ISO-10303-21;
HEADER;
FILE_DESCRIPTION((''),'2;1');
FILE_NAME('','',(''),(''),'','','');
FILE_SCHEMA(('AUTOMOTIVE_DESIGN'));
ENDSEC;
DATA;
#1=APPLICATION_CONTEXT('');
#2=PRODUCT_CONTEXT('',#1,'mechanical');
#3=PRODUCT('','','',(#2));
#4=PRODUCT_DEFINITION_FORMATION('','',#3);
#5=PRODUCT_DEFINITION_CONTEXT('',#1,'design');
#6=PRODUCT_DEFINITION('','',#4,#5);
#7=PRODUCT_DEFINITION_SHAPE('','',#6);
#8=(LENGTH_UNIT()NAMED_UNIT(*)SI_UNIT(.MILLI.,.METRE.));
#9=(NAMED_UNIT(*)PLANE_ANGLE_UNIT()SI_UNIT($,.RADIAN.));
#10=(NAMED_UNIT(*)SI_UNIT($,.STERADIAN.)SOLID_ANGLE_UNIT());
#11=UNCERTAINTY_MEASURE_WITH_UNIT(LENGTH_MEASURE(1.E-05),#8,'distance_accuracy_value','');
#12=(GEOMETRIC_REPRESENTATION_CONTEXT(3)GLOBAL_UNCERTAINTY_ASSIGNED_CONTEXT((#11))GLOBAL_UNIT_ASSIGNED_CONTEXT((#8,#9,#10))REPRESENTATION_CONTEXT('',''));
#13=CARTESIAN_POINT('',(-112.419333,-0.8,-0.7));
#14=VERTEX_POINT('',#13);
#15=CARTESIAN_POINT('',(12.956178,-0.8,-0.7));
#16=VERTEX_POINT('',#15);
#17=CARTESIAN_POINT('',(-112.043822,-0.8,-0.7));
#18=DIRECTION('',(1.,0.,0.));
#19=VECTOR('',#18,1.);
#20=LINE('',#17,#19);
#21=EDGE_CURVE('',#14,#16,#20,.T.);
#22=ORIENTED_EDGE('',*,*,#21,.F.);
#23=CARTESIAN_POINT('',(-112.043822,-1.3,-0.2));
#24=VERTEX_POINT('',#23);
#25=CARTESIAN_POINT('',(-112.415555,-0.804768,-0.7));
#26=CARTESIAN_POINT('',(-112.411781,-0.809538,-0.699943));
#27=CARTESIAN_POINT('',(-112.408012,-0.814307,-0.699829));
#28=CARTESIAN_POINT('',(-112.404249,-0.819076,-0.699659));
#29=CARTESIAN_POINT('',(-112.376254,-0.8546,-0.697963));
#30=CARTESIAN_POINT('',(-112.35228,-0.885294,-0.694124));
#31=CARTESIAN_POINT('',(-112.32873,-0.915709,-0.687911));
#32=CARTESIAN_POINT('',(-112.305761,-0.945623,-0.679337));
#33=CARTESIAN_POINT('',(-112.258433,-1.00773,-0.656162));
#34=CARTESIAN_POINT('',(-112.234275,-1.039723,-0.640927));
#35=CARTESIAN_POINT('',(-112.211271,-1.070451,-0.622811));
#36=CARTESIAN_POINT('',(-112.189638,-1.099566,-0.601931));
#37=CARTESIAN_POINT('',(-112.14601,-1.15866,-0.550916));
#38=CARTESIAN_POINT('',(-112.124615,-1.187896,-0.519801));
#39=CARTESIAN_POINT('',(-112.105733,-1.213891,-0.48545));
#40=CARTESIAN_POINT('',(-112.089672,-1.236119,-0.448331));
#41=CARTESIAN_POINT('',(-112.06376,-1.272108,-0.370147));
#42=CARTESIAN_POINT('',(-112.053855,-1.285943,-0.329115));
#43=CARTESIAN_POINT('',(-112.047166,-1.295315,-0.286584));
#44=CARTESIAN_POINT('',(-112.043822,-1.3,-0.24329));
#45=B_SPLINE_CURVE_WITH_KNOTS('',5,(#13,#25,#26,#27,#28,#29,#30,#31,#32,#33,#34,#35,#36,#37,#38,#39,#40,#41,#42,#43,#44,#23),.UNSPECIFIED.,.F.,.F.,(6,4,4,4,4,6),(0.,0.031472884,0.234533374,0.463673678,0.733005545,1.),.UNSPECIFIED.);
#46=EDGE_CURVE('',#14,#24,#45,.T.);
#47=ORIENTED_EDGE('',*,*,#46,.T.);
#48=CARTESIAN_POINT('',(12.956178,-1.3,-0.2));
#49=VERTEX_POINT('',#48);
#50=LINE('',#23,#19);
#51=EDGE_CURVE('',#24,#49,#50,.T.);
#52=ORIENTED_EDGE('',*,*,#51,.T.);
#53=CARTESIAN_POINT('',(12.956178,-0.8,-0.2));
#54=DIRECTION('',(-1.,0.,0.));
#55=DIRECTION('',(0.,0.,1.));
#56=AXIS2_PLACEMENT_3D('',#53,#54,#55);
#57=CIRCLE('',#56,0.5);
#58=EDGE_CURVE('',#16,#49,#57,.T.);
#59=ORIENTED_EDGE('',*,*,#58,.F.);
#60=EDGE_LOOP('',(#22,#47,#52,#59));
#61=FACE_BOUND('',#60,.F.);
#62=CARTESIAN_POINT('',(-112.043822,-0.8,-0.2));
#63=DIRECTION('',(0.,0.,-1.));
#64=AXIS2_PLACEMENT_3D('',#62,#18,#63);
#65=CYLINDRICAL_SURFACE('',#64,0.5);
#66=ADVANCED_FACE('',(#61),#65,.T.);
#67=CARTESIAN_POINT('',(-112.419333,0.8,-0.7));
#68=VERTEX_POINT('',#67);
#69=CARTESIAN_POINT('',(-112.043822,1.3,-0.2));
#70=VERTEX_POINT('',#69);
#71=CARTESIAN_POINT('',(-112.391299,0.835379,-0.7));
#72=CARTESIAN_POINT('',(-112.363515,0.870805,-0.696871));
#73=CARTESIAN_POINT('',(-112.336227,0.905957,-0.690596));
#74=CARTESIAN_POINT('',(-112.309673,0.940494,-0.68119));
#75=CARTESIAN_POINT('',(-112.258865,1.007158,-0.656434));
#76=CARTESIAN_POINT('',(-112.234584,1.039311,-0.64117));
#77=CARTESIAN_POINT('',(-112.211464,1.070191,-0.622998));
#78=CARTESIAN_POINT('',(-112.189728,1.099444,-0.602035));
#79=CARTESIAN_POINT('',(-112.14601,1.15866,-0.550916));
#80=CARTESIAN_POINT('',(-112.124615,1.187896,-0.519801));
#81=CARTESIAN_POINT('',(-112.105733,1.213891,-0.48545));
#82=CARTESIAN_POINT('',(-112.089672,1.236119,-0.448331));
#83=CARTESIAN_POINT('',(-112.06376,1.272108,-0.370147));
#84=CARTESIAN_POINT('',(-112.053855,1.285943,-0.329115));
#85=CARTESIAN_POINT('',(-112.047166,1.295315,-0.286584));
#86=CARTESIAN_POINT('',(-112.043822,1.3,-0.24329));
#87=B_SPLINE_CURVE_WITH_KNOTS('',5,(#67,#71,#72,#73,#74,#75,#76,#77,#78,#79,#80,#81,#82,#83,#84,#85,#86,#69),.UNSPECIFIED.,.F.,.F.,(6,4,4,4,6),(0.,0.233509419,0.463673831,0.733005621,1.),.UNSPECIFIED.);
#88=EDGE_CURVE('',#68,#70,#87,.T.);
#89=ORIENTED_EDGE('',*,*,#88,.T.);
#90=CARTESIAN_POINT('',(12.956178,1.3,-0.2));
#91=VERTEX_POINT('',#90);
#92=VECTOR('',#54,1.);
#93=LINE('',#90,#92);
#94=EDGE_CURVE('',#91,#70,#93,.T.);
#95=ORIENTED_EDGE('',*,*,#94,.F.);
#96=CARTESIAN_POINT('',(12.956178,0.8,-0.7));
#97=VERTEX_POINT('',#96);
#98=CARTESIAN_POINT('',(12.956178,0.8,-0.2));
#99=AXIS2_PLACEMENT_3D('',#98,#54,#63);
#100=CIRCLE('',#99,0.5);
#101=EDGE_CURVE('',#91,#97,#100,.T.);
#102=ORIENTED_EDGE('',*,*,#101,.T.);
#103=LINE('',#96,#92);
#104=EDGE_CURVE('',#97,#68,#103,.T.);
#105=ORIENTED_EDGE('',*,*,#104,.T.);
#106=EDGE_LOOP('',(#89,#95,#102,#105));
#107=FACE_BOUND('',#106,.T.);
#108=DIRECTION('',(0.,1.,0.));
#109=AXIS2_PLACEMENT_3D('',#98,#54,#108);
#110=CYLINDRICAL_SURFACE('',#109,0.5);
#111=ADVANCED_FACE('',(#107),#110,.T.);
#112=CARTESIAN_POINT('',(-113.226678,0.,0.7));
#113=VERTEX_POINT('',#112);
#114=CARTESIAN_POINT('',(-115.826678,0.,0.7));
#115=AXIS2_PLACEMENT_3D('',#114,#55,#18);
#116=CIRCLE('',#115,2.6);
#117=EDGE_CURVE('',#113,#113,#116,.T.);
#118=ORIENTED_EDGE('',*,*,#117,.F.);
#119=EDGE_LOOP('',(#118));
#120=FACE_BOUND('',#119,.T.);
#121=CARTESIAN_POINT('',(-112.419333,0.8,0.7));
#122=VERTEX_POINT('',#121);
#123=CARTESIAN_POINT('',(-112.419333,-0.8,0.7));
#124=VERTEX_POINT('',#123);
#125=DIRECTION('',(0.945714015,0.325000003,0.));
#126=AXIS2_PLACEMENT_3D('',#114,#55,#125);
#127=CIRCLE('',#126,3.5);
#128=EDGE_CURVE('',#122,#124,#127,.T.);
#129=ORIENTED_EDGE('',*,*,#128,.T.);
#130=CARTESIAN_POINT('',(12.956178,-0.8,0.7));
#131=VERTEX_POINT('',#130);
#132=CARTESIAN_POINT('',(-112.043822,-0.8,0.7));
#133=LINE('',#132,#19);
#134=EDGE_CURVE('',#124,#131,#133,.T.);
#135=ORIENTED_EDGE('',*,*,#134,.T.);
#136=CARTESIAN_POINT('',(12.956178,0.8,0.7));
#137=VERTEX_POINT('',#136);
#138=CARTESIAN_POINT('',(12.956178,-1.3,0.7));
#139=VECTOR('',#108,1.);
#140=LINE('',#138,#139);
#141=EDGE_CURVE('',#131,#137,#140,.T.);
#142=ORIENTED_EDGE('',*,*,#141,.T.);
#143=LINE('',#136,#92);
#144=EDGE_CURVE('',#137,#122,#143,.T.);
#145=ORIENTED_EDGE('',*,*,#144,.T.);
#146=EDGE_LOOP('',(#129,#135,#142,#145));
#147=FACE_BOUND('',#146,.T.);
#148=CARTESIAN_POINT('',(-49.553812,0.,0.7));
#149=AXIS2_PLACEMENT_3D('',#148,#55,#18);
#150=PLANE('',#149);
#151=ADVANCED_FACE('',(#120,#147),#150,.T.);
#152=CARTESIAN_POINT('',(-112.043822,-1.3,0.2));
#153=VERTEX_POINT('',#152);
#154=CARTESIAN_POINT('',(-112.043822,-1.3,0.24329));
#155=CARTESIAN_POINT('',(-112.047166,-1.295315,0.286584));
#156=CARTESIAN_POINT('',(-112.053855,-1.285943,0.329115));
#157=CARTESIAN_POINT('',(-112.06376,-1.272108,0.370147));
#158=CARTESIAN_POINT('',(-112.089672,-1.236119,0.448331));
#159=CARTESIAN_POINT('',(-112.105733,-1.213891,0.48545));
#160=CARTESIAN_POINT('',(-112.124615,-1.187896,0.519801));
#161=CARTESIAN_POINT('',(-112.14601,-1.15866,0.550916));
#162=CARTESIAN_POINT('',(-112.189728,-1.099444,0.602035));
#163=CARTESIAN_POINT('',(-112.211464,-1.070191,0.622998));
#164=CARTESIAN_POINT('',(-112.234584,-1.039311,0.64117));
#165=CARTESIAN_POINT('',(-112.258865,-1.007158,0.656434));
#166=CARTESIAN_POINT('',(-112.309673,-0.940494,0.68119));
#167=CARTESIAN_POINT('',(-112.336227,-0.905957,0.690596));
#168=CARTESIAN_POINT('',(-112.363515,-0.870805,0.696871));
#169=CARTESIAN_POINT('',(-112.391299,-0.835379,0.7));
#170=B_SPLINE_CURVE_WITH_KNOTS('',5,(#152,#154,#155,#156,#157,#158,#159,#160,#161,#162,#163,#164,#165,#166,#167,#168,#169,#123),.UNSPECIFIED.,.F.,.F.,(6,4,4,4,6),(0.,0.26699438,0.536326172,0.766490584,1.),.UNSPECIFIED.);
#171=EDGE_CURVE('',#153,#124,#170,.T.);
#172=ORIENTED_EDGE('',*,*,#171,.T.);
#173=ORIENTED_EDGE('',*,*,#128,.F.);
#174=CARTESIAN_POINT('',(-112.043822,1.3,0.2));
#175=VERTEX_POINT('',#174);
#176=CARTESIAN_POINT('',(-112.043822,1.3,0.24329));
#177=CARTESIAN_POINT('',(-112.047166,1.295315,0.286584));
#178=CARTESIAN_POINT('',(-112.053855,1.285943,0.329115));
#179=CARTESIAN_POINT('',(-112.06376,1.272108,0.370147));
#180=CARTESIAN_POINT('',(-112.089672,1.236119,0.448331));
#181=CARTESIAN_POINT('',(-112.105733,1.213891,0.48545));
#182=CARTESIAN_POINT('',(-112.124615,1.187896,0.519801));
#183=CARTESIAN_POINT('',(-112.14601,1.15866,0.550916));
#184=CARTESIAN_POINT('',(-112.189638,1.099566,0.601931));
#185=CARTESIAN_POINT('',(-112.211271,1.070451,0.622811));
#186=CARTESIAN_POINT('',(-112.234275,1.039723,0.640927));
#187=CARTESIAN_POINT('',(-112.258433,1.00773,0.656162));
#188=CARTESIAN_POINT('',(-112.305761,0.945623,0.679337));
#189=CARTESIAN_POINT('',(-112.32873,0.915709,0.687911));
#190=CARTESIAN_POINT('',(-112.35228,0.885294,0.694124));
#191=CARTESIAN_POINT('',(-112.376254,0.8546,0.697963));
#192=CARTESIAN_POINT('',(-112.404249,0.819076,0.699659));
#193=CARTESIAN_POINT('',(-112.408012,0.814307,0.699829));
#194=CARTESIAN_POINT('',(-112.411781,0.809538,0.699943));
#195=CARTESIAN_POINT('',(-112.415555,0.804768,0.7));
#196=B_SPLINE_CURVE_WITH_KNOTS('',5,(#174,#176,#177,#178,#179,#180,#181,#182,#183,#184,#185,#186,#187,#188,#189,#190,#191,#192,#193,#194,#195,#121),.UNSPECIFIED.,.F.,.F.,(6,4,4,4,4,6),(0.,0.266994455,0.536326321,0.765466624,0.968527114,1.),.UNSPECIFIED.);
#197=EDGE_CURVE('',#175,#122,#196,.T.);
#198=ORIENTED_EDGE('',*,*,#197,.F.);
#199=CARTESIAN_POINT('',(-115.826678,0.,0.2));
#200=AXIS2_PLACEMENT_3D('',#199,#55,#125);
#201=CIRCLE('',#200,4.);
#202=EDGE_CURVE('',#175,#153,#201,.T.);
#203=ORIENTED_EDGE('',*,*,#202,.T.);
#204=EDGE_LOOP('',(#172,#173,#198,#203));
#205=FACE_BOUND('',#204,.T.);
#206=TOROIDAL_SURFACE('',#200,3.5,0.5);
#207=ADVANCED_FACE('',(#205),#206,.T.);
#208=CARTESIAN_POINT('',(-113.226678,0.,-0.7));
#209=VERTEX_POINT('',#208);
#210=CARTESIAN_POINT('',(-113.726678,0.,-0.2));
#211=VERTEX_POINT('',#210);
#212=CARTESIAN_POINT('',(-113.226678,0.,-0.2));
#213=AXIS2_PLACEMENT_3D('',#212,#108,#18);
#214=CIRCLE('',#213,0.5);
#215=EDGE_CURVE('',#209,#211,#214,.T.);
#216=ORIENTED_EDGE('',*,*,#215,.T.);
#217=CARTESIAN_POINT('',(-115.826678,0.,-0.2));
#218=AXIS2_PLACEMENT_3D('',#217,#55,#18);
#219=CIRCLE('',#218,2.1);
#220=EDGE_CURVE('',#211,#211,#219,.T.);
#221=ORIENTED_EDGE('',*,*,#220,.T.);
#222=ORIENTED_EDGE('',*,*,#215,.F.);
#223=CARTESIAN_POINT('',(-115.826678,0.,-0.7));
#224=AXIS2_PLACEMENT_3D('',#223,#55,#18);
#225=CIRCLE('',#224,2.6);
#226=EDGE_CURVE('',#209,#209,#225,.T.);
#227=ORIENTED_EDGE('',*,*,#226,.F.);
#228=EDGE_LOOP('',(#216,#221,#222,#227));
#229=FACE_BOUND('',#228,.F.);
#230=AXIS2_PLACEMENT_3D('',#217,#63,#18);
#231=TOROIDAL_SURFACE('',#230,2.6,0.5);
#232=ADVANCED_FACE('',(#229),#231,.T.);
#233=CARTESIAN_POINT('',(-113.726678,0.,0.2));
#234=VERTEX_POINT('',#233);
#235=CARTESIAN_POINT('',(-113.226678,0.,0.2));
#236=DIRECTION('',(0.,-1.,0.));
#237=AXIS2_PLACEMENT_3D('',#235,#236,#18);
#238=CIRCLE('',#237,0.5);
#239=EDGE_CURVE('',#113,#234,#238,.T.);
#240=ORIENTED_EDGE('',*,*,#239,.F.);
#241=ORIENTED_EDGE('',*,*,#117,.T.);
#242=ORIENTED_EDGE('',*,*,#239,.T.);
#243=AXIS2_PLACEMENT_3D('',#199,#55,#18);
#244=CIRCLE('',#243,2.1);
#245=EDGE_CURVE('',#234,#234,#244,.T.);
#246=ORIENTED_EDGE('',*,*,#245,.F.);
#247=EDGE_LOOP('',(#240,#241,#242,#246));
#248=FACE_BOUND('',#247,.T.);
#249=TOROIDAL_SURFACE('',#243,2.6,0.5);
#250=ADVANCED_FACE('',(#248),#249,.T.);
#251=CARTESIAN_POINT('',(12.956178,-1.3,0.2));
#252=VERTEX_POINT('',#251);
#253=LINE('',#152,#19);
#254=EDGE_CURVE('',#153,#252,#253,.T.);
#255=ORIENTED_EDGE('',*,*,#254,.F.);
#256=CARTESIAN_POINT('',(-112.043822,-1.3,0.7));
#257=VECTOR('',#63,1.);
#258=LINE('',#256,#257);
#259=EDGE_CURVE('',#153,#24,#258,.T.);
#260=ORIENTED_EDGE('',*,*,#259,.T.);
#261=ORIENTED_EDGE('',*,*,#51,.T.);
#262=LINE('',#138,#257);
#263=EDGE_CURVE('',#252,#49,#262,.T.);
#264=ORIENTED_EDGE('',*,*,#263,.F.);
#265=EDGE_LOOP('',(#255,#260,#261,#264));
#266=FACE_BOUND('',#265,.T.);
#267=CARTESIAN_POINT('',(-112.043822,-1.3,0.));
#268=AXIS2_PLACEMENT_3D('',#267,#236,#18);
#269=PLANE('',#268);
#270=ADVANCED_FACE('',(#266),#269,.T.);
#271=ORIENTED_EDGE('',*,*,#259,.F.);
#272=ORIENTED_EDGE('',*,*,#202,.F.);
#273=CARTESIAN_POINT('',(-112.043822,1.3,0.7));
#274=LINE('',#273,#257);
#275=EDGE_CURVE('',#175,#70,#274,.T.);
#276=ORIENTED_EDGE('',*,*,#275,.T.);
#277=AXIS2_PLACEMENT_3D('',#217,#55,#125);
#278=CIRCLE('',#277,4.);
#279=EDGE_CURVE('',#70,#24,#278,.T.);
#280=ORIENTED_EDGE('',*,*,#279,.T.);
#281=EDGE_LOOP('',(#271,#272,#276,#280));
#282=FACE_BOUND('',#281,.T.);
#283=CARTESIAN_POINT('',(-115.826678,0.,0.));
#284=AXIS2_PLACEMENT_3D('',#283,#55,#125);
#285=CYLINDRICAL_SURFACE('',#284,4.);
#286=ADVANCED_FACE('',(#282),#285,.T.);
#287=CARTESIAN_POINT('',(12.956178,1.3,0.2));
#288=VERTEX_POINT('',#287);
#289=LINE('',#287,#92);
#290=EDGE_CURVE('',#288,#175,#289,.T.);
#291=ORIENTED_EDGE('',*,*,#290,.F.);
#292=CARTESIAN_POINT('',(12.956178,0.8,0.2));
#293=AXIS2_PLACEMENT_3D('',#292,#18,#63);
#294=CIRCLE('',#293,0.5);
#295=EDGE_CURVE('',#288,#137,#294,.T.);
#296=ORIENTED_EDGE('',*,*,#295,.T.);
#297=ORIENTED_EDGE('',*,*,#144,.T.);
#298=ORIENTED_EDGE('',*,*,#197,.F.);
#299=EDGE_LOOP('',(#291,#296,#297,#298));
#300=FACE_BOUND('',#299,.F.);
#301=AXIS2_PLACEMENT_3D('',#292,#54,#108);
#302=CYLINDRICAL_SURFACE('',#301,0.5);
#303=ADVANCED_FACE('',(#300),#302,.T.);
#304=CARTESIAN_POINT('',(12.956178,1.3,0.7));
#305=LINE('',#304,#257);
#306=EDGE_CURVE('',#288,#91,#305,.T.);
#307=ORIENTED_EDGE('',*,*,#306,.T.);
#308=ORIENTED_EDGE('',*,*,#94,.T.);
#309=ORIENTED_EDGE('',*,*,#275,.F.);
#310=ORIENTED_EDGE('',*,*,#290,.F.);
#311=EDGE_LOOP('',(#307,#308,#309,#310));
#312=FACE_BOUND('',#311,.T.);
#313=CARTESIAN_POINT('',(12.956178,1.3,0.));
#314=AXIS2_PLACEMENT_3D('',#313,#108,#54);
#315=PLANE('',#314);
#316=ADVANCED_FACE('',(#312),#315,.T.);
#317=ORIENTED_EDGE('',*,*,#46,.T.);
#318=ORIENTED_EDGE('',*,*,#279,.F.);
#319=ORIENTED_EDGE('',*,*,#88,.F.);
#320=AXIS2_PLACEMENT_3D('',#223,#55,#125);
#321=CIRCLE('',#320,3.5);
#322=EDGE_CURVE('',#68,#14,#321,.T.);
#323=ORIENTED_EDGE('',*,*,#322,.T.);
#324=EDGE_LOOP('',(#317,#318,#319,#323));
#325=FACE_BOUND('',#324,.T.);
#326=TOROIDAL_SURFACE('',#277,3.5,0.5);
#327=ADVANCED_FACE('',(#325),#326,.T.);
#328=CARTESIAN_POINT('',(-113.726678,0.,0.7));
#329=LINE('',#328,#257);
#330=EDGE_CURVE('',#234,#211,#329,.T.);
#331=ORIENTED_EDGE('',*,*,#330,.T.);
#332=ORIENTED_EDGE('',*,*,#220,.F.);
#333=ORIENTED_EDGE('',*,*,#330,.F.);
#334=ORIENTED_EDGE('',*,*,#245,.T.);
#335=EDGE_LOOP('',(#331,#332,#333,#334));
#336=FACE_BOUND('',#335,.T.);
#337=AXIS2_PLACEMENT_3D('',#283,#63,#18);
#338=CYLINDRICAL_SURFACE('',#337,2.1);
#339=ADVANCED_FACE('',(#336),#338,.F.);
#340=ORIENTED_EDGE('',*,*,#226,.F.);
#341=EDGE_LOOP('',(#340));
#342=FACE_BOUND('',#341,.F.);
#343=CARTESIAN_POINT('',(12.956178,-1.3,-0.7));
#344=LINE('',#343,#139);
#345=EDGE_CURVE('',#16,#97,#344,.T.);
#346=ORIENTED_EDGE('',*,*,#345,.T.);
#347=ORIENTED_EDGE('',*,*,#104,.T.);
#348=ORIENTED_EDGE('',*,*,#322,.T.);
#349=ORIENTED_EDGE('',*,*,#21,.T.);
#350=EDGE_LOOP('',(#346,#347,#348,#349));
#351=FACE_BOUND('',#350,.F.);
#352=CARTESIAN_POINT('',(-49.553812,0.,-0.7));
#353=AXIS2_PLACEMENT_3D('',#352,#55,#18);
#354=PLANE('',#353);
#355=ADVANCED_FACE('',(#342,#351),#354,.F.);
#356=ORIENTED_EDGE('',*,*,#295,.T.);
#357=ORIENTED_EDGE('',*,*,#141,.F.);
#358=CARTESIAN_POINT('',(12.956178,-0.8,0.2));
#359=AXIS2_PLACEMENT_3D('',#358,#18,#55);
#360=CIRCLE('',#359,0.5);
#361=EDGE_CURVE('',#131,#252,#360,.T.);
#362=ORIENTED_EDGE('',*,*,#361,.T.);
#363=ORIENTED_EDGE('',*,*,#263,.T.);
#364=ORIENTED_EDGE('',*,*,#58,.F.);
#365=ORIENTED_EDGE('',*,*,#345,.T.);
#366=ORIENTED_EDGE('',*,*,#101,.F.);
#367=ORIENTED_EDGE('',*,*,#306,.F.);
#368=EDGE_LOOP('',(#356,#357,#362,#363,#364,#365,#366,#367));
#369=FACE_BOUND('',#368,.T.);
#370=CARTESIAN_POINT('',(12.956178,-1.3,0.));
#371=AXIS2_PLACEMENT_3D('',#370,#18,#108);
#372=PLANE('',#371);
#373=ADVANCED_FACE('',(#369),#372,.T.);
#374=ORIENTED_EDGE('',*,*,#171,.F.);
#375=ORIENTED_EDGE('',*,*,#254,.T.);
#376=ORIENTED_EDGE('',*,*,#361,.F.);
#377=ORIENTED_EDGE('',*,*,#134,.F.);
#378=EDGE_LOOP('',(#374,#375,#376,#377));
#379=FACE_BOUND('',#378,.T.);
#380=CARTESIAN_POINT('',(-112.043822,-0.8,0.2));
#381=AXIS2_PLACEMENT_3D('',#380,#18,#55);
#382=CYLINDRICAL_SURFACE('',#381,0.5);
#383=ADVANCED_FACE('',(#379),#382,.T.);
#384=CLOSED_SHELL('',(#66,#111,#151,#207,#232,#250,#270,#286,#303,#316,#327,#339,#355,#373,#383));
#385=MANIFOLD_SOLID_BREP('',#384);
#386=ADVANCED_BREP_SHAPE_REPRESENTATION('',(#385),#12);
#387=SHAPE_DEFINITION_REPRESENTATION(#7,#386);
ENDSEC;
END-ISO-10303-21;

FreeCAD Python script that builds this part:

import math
import FreeCAD as App
import Part
import Sketcher

V = App.Vector


def edges_at(feature, points):
    """Names of the edges that pass closest to the given points."""
    edges = feature.Shape.Edges
    near = lambda p: min(range(len(edges)), key=lambda i: edges[i].distToShape(Part.Vertex(*p))[0])
    return sorted({f"Edge{near(p) + 1}" for p in points})

doc = App.newDocument("Part")
body = doc.addObject("PartDesign::Body", "Body")

# Sketch on XY plane
sketch1 = doc.addObject("Sketcher::SketchObject", "Sketch")
body.addObject(sketch1)
sketch1.AttachmentSupport = (doc.XY_Plane, [""])
sketch1.MapMode = "FlatFace"
sketch1.addGeometry([
    Part.ArcOfCircle(Part.Circle(V(-115.826647, -0.000005, 0), V(0, 0, 1), 3.999969), math.radians(-18.965652), math.radians(0.000072)),
    Part.ArcOfCircle(Part.Circle(V(-115.826647, 0.000005, 0), V(0, 0, 1), 3.999969), math.radians(-0.000072), math.radians(18.965652)),
    Part.ArcOfCircle(Part.Circle(V(-115.826678, 0, 0), V(0, 0, 1), 4), math.radians(18.965575), math.radians(341.034425)),
    Part.Circle(V(-115.826678, 0, 0), V(0, 0, 1), 2.1),
], False)
sketch1.addConstraint([
    Sketcher.Constraint("Coincident", 0, 2, 1, 1),
    Sketcher.Constraint("Coincident", 1, 2, 2, 1),
    Sketcher.Constraint("Coincident", 2, 2, 0, 1),
    Sketcher.Constraint("Coincident", 3, 3, 2, 3),
    Sketcher.Constraint("PointOnObject", 2, 3, -1),
    Sketcher.Constraint("PointOnObject", 0, 2, -1),
    Sketcher.Constraint("Radius", 2, 4.0),
    Sketcher.Constraint("Diameter", 3, 4.2),
    Sketcher.Constraint("DistanceX", 3, 3, 0, 2, 4.0),
    Sketcher.Constraint("DistanceY", -1, 1, 1, 2, 1.3),
    Sketcher.Constraint("DistanceY", 2, 2, -1, 1, 1.3),
    Sketcher.Constraint("Radius", 0, 3.999969),
    Sketcher.Constraint("Radius", 1, 3.999969),
    Sketcher.Constraint("DistanceX", 2, 3, -1, 1, 115.826678),
])
pad1 = doc.addObject("PartDesign::Pad", "Pad")
body.addObject(pad1)
pad1.Profile = sketch1
pad1.Length = 1.4
pad1.Midplane = True

# Sketch on XY plane
sketch2 = doc.addObject("Sketcher::SketchObject", "Sketch001")
body.addObject(sketch2)
sketch2.AttachmentSupport = (doc.XY_Plane, [""])
sketch2.MapMode = "FlatFace"
sketch2.addGeometry([
    Part.ArcOfCircle(Part.Circle(V(-115.8, 0, 0), V(0, 0, 1), 4), math.radians(0), math.radians(18.97)),  # 0
    Part.ArcOfCircle(Part.Circle(V(-115.8, 0, 0), V(0, 0, 1), 4), math.radians(-18.97), math.radians(0)),  # 1
    Part.LineSegment(V(-112, -1.3, 0), V(13, -1.3, 0)),  # 2
    Part.LineSegment(V(13, -1.3, 0), V(13, 1.3, 0)),  # 3
    Part.LineSegment(V(13, 1.3, 0), V(-112, 1.3, 0)),  # 4
], False)
sketch2.addConstraint([
    Sketcher.Constraint("Coincident", 0, 1, 1, 2),
    Sketcher.Constraint("Coincident", 1, 1, 2, 1),
    Sketcher.Constraint("Coincident", 2, 2, 3, 1),
    Sketcher.Constraint("Coincident", 3, 2, 4, 1),
    Sketcher.Constraint("Coincident", 4, 2, 0, 2),
    Sketcher.Constraint("Horizontal", 2),
    Sketcher.Constraint("Vertical", 3),
    Sketcher.Constraint("Horizontal", 4),
    Sketcher.Constraint("Equal", 0, 1),
    Sketcher.Constraint("Symmetric", 1, 1, 4, 2, -1),
    Sketcher.Constraint("PointOnObject", 0, 1, -1),
    Sketcher.Constraint("DistanceX", 2, 1, 2, 2, 125.0),
    Sketcher.Constraint("DistanceY", 3, 1, 3, 2, 2.6),
    Sketcher.Constraint("Radius", 0, 3.999969),
    Sketcher.Constraint("DistanceX", 0, 1, -1, 1, 111.826678),
    Sketcher.Constraint("DistanceX", 1, 1, -1, 1, 112.043822),
])
pad2 = doc.addObject("PartDesign::Pad", "Pad001")
body.addObject(pad2)
pad2.Profile = sketch2
pad2.Length = 1.4
pad2.Midplane = True
doc.recompute()

fillet = doc.addObject("PartDesign::Fillet", "Fillet")
body.addObject(fillet)
fillet.Base = (pad2, edges_at(pad2, [
    (-117.927, 0, 0.7),
    (-117.927, 0, -0.7),
    (-119.827, 0, -0.7),
    (-119.827, 0, 0.7),
    (-49.544, 1.3, 0.7),
    (-49.544, -1.3, 0.7),
    (-49.544, 1.3, -0.7),
    (-49.544, -1.3, -0.7),
]))
fillet.Radius = 0.5

doc.recompute()
